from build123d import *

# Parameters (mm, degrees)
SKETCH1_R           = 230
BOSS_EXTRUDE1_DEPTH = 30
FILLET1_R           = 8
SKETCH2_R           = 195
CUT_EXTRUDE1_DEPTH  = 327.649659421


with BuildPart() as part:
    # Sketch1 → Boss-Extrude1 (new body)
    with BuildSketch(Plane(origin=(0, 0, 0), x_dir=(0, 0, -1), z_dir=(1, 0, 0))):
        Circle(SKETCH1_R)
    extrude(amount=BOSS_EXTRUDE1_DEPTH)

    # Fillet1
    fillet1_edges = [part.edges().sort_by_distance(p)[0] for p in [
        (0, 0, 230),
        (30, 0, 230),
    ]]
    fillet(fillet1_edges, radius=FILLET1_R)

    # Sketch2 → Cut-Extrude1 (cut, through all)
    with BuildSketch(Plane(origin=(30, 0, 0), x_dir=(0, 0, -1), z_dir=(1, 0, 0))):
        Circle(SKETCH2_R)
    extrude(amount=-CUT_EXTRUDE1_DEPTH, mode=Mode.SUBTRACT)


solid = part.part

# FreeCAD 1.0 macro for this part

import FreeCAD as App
import Part
import Sketcher
Q = App.Units.Quantity


def edges_at(feature, points):
    """Names of the edges that pass closest to the given points."""
    edges = feature.Shape.Edges
    near = lambda p: min(range(len(edges)), key=lambda i: edges[i].distToShape(Part.Vertex(*p))[0])
    return sorted({f"Edge{near(p) + 1}" for p in points})

doc = App.newDocument("Part")
body = doc.addObject("PartDesign::Body", "Body")

# Sketch on YZ plane
sketch1 = doc.addObject("Sketcher::SketchObject", "Sketch")
body.addObject(sketch1)
sketch1.AttachmentSupport = (doc.YZ_Plane, [""])
sketch1.MapMode = "FlatFace"
sketch1.addGeometry(Part.Circle(App.Vector(0, 0, 0), App.Vector(0, 0, 1), 230), False)
sketch1.addConstraint([
    Sketcher.Constraint("Coincident", 0, 3, -1, 1),
    Sketcher.Constraint("Diameter", 0, Q("460 mm")),
])
pad1 = doc.addObject("PartDesign::Pad", "Pad")
body.addObject(pad1)
pad1.Profile = sketch1
pad1.Length = 30
doc.recompute()

fillet = doc.addObject("PartDesign::Fillet", "Fillet")
body.addObject(fillet)
fillet.Base = (pad1, edges_at(pad1, [(0, 0, 230), (30, 0, 230)]))
fillet.Radius = 8

# Sketch on YZ plane
sketch2 = doc.addObject("Sketcher::SketchObject", "Sketch001")
body.addObject(sketch2)
sketch2.AttachmentSupport = (doc.YZ_Plane, [""])
sketch2.MapMode = "FlatFace"
sketch2.AttachmentOffset = App.Placement(App.Vector(0, 0, 30), App.Rotation())
sketch2.addGeometry(Part.Circle(App.Vector(0, 0, 0), App.Vector(0, 0, 1), 195), False)
sketch2.addConstraint([
    Sketcher.Constraint("Coincident", 0, 3, -1, 1),
    Sketcher.Constraint("Diameter", 0, Q("390 mm")),
])
pocket1 = doc.addObject("PartDesign::Pocket", "Pocket")
body.addObject(pocket1)
pocket1.Profile = sketch2
pocket1.Type = "ThroughAll"

doc.recompute()
